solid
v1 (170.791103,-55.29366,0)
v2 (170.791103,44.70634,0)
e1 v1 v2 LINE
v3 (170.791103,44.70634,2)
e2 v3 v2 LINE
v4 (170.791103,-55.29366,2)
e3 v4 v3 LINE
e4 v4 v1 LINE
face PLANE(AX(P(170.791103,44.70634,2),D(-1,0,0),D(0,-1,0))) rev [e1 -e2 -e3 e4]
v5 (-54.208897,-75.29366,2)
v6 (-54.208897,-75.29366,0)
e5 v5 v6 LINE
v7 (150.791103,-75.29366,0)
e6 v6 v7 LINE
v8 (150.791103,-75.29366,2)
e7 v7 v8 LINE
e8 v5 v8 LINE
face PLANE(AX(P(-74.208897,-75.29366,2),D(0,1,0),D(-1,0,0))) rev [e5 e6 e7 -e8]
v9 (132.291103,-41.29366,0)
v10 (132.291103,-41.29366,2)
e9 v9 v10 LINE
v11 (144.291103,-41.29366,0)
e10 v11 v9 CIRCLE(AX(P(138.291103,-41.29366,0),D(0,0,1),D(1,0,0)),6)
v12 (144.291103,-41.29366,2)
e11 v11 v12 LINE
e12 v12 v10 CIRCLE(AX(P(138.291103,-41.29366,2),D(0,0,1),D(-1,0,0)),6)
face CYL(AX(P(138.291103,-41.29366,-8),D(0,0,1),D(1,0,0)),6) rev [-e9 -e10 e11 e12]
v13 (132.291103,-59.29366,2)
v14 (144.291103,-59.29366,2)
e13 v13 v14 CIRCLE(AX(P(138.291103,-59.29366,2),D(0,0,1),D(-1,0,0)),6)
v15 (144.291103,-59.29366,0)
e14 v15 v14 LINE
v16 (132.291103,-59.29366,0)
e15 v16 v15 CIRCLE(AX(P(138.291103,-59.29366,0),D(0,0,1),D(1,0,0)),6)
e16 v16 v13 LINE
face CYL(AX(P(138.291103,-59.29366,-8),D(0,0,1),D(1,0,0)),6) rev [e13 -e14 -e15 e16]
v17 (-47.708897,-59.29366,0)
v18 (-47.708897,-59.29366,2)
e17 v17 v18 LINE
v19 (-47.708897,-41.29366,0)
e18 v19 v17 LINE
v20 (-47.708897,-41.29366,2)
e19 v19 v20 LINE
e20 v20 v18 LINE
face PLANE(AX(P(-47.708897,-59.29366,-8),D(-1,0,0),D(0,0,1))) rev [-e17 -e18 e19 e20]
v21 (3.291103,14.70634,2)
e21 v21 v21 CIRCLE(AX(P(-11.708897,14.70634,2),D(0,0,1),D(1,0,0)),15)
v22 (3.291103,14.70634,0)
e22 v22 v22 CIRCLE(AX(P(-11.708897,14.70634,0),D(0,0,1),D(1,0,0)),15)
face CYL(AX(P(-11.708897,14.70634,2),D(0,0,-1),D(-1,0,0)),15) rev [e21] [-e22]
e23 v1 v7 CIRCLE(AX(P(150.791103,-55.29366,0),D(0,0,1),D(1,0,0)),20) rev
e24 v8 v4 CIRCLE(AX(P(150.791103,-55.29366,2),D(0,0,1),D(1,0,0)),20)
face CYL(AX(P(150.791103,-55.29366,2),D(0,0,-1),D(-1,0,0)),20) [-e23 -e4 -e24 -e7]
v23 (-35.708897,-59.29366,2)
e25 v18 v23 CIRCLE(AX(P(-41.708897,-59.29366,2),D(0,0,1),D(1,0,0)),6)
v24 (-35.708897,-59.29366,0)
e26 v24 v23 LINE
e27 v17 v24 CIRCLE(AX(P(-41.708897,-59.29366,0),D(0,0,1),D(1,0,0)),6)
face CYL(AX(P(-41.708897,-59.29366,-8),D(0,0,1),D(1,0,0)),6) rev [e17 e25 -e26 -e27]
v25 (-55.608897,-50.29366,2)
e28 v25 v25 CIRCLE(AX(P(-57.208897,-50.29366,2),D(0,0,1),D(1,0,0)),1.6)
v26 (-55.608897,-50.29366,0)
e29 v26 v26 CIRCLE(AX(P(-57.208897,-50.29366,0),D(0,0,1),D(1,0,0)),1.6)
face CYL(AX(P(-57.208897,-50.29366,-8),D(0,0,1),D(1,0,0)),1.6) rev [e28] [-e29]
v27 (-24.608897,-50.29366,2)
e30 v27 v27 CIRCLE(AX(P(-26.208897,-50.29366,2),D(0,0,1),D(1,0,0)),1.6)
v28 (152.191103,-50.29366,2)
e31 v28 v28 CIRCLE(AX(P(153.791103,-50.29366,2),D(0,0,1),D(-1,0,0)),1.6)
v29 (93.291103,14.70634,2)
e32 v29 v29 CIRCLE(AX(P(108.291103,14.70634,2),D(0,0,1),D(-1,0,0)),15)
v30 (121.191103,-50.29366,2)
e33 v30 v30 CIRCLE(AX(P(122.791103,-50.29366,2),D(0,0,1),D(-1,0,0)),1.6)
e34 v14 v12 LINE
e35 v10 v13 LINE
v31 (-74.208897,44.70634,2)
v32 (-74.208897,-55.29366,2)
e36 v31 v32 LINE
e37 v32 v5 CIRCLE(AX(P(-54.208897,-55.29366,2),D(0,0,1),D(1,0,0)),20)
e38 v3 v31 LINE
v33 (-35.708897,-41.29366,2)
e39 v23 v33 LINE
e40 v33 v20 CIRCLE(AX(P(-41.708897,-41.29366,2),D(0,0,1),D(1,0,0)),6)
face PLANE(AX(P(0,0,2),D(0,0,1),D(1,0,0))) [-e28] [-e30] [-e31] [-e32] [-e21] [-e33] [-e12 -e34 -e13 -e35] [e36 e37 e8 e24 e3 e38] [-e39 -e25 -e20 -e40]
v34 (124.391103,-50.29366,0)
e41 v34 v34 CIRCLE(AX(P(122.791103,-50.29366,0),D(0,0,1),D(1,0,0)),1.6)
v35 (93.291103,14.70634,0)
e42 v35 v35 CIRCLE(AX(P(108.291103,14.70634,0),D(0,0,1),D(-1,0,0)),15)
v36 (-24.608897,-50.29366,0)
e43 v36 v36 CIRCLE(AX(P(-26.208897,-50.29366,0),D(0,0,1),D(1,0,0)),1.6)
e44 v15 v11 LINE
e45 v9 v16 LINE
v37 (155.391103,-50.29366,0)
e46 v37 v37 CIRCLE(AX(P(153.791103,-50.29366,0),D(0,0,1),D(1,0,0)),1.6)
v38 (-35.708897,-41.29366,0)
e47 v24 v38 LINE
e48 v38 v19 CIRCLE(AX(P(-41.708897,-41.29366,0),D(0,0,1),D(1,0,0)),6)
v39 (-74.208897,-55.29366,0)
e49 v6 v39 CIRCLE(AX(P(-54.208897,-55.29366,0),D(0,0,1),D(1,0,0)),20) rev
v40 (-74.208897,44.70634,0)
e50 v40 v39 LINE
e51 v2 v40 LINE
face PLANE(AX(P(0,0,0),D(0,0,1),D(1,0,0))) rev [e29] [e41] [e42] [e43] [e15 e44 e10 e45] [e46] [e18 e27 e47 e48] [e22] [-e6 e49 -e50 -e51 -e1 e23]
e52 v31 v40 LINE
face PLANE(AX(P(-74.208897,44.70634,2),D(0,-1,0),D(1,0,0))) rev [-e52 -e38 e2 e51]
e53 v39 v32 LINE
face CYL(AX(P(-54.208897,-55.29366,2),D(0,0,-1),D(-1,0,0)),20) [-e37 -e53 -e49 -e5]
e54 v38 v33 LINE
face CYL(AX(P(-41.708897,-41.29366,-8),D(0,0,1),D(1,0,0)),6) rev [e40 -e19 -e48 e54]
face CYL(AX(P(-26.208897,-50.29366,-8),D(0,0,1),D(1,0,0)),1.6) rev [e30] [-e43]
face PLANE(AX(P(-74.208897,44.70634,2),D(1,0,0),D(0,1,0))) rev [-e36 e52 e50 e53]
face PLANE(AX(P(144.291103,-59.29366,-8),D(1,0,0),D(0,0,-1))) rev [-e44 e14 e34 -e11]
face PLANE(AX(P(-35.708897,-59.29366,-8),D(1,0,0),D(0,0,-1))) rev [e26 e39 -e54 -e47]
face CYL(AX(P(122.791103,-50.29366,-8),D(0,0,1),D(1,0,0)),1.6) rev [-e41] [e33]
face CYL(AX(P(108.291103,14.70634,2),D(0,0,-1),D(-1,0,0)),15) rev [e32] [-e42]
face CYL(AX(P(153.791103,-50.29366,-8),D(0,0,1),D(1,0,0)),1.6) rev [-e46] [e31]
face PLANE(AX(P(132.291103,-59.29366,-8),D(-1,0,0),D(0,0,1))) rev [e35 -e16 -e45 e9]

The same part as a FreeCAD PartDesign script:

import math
import FreeCAD as App
import Part
import Sketcher

V = App.Vector
Q = App.Units.Quantity


def edges_at(feature, points):
    """Names of the edges that pass closest to the given points."""
    edges = feature.Shape.Edges
    near = lambda p: min(range(len(edges)), key=lambda i: edges[i].distToShape(Part.Vertex(*p))[0])
    return sorted({f"Edge{near(p) + 1}" for p in points})


def add_polygon(sketch, points):
    """Adds a closed chain of lines whose ends are joined by coincident constraints."""
    first, n = sketch.GeometryCount, len(points)
    for a, b in zip(points, points[1:] + points[:1]):
        sketch.addGeometry(Part.LineSegment(App.Vector(*a, 0), App.Vector(*b, 0)), False)
    for i in range(n):
        sketch.addConstraint(Sketcher.Constraint("Coincident", first + i, 2, first + (i + 1) % n, 1))

doc = App.newDocument("Part")
body = doc.addObject("PartDesign::Body", "Body")

# Sketch on XY plane
sketch1 = body.newObject("Sketcher::SketchObject", "Sketch")
sketch1.AttachmentSupport = (doc.getObject("XY_Plane"), [""])
sketch1.MapMode = "FlatFace"
add_polygon(sketch1, [(-74.208897, 44.70634), (-74.208897, -75.29366), (170.791103, -75.29366), (170.791103, 44.70634)])  # lines 0-3
sketch1.addGeometry(Part.Circle(V(-11.708897, 14.70634, 0), V(0, 0, 1), 15), False)  # 4
sketch1.addGeometry(Part.Circle(V(108.291103, 14.70634, 0), V(0, 0, 1), 15), False)  # 5
sketch1.addConstraint([
    Sketcher.Constraint("Vertical", 0),
    Sketcher.Constraint("Horizontal", 1),
    Sketcher.Constraint("Vertical", 2),
    Sketcher.Constraint("Horizontal", 3),
    Sketcher.Constraint("Equal", 4, 5),
    Sketcher.Constraint("Horizontal", 4, 3, 5, 3),
    Sketcher.Constraint("Diameter", 4, Q("30 mm")),
    Sketcher.Constraint("DistanceX", 1, 1, 1, 2, Q("245 mm")),
    Sketcher.Constraint("DistanceY", 0, 2, 0, 1, Q("120 mm")),
    Sketcher.Constraint("DistanceX", 4, 3, 5, 3, Q("120 mm")),
    Sketcher.Constraint("DistanceY", 0, 2, 4, 3, Q("90 mm")),
    Sketcher.Constraint("DistanceX", 0, 2, 4, 3, Q("62.5 mm")),
    Sketcher.Constraint("DistanceY", -1, 1, 4, 3, Q("14.70634 mm")),
    Sketcher.Constraint("DistanceX", 4, 3, -1, 1, Q("11.708897 mm")),
])
pad1 = body.newObject("PartDesign::Pad", "Pad")
pad1.Profile = sketch1
pad1.Length = 2
doc.recompute()

fillet = body.newObject("PartDesign::Fillet", "Fillet")
fillet.Base = (pad1, edges_at(pad1, [(170.791, -75.294, 1)]))
fillet.Radius = 20
doc.recompute()

fillet2 = body.newObject("PartDesign::Fillet", "Fillet001")
fillet2.Base = (fillet, edges_at(fillet, [(-74.209, -75.294, 1)]))
fillet2.Radius = 20

# Sketch on XY plane
sketch2 = body.newObject("Sketcher::SketchObject", "Sketch001")
sketch2.AttachmentSupport = (doc.getObject("XY_Plane"), [""])
sketch2.MapMode = "FlatFace"
sketch2.AttachmentOffset = App.Placement(V(0, 0, 2), App.Rotation())
sketch2.addGeometry([
    Part.Circle(V(-26.208897, -50.29366, 0), V(0, 0, 1), 1.6),  # 0
    Part.Circle(V(-57.208897, -50.29366, 0), V(0, 0, 1), 1.6),  # 1
    Part.Circle(V(153.791103, -50.29366, 0), V(0, 0, 1), 1.6),  # 2
    Part.Circle(V(122.791103, -50.29366, 0), V(0, 0, 1), 1.6),  # 3
    Part.LineSegment(V(-47.708897, -41.29366, 0), V(-47.708897, -59.29366, 0)),  # 4
    Part.ArcOfCircle(Part.Circle(V(-41.708897, -59.29366, 0), V(0, 0, 1), 6), math.radians(180), math.radians(360)),  # 5
    Part.LineSegment(V(-35.708897, -59.29366, 0), V(-35.708897, -41.29366, 0)),  # 6
    Part.ArcOfCircle(Part.Circle(V(-41.708897, -41.29366, 0), V(0, 0, 1), 6), math.radians(0), math.radians(180)),  # 7
    Part.LineSegment(V(144.291103, -59.29366, 0), V(144.291103, -41.29366, 0)),  # 8
    Part.ArcOfCircle(Part.Circle(V(138.291103, -41.29366, 0), V(0, 0, 1), 6), math.radians(0), math.radians(180)),  # 9
    Part.LineSegment(V(132.291103, -41.29366, 0), V(132.291103, -59.29366, 0)),  # 10
    Part.ArcOfCircle(Part.Circle(V(138.291103, -59.29366, 0), V(0, 0, 1), 6), math.radians(180), math.radians(360)),  # 11
], False)
sketch2.addConstraint([
    Sketcher.Constraint("Tangent", 4, 2, 5, 1),
    Sketcher.Constraint("Tangent", 5, 2, 6, 1),
    Sketcher.Constraint("Tangent", 6, 2, 7, 1),
    Sketcher.Constraint("Tangent", 7, 2, 4, 1),
    Sketcher.Constraint("Tangent", 8, 2, 9, 1),
    Sketcher.Constraint("Tangent", 9, 2, 10, 1),
    Sketcher.Constraint("Tangent", 10, 2, 11, 1),
    Sketcher.Constraint("Tangent", 11, 2, 8, 1),
    Sketcher.Constraint("Vertical", 4),
    Sketcher.Constraint("Vertical", 6),
    Sketcher.Constraint("Vertical", 8),
    Sketcher.Constraint("Vertical", 10),
    Sketcher.Constraint("Equal", 0, 1),
    Sketcher.Constraint("Equal", 1, 2),
    Sketcher.Constraint("Equal", 2, 3),
    Sketcher.Constraint("Equal", 7, 9),
    Sketcher.Constraint("Horizontal", 0, 3, 1, 3),
    Sketcher.Constraint("Horizontal", 1, 3, 2, 3),
    Sketcher.Constraint("Horizontal", 2, 3, 3, 3),
    Sketcher.Constraint("Horizontal", 7, 3, 9, 3),
    Sketcher.Constraint("Horizontal", 5, 3, 11, 3),
    Sketcher.Constraint("Radius", 5, Q("6 mm")),
    Sketcher.Constraint("Diameter", 0, Q("3.2 mm")),
    Sketcher.Constraint("DistanceY", 4, 2, 4, 1, Q("18 mm")),
    Sketcher.Constraint("DistanceX", 1, 3, 0, 3, Q("31 mm")),
    Sketcher.Constraint("DistanceX", 0, 3, 2, 3, Q("180 mm")),
    Sketcher.Constraint("DistanceX", 3, 3, 2, 3, Q("31 mm")),
    Sketcher.Constraint("DistanceY", 5, 3, 1, 3, Q("9 mm")),
    Sketcher.Constraint("DistanceX", 7, 3, 9, 3, Q("180 mm")),
    Sketcher.Constraint("DistanceX", 1, 3, 5, 3, Q("15.5 mm")),
    Sketcher.Constraint("DistanceY", 0, 3, -1, 1, Q("50.29366 mm")),
    Sketcher.Constraint("DistanceX", 0, 3, -1, 1, Q("26.208897 mm")),
])
pocket1 = body.newObject("PartDesign::Pocket", "Pocket")
pocket1.Profile = sketch2
pocket1.Length = 10

doc.recompute()
